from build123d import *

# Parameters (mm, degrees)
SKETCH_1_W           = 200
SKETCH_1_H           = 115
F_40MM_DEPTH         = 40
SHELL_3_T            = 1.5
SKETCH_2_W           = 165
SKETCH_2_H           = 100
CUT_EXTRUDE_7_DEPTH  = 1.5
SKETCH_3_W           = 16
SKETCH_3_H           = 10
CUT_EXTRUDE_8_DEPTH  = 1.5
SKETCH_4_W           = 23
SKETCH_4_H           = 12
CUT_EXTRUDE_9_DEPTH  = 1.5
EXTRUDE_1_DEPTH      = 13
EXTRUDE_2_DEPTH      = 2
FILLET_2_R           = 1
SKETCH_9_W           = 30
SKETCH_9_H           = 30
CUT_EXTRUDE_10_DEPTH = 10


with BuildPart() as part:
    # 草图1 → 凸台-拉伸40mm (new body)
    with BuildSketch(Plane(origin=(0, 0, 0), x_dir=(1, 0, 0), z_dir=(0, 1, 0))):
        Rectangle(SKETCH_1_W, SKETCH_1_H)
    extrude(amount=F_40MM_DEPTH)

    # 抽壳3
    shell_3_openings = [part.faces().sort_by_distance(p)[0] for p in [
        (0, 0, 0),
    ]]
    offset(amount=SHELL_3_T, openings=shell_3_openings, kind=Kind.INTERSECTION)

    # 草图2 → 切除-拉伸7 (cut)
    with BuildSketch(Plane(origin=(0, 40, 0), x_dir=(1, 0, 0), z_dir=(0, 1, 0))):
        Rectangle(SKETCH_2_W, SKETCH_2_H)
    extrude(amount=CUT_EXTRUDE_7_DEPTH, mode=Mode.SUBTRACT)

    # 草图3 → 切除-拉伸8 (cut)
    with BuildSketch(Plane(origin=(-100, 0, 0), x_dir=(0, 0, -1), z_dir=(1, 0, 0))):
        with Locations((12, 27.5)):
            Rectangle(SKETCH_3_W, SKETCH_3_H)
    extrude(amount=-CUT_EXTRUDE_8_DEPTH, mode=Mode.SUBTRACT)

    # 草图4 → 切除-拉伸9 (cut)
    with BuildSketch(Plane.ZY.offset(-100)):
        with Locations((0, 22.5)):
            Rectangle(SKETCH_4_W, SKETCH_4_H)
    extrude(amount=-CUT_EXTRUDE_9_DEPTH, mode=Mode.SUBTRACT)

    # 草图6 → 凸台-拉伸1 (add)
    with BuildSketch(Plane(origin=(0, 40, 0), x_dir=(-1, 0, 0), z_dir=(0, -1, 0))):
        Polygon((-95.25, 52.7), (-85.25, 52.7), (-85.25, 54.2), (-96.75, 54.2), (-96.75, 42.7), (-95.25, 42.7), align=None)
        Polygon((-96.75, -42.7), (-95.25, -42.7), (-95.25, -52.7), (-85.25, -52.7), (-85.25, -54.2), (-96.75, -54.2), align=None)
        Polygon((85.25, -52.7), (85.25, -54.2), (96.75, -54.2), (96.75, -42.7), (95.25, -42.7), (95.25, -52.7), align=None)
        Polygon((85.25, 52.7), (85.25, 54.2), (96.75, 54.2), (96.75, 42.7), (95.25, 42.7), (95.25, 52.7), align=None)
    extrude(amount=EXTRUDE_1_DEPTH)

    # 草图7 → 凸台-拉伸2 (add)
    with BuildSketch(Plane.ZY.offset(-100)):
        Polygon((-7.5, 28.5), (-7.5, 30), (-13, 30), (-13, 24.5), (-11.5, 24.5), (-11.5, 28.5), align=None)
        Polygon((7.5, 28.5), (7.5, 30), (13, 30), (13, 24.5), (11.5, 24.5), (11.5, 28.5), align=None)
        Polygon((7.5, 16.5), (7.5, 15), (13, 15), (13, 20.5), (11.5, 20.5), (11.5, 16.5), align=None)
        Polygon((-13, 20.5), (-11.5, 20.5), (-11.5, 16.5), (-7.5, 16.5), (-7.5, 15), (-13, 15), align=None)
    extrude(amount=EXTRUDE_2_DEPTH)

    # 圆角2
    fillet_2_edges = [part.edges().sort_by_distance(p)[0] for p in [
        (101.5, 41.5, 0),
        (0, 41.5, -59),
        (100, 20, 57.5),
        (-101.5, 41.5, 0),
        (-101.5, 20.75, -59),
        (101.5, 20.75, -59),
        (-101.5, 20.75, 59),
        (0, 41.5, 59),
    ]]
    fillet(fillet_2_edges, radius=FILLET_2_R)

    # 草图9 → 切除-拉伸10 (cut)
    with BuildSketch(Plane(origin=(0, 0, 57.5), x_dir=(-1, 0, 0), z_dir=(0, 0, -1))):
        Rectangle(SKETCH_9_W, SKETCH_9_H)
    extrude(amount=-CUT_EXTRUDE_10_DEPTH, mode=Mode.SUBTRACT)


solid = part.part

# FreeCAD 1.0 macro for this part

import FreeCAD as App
import Part
import Sketcher
from FreeCAD import Vector
Q = App.Units.Quantity


def edges_at(feature, points):
    """Names of the edges that pass closest to the given points."""
    edges = feature.Shape.Edges
    near = lambda p: min(range(len(edges)), key=lambda i: edges[i].distToShape(Part.Vertex(*p))[0])
    return sorted({f"Edge{near(p) + 1}" for p in points})


def faces_at(feature, points):
    """Names of the faces that lie closest to the given points."""
    faces = feature.Shape.Faces
    near = lambda p: min(range(len(faces)), key=lambda i: faces[i].distToShape(Part.Vertex(*p))[0])
    return sorted({f"Face{near(p) + 1}" for p in points})

doc = App.newDocument("Part")
body = doc.addObject("PartDesign::Body", "Body")

sketch1 = body.newObject("Sketcher::SketchObject", "Sketch")
sketch1.AttachmentSupport = (doc.getObject("XZ_Plane"), [""])
sketch1.MapMode = "FlatFace"
sketch1.addGeometry([
    Part.LineSegment(Vector(-100, -58, 0), Vector(-100, 58, 0)),
    Part.LineSegment(Vector(-100, 58, 0), Vector(100, 58, 0)),
    Part.LineSegment(Vector(100, 58, 0), Vector(100, -58, 0)),
    Part.LineSegment(Vector(100, -58, 0), Vector(-100, -58, 0)),
], False)
sketch1.addConstraint([
    Sketcher.Constraint("Coincident", 0, 2, 1, 1),
    Sketcher.Constraint("Coincident", 1, 2, 2, 1),
    Sketcher.Constraint("Coincident", 2, 2, 3, 1),
    Sketcher.Constraint("Coincident", 3, 2, 0, 1),
    Sketcher.Constraint("Vertical", 0),
    Sketcher.Constraint("Horizontal", 1),
    Sketcher.Constraint("Vertical", 2),
    Sketcher.Constraint("Horizontal", 3),
    Sketcher.Constraint("Symmetric", 0, 2, 2, 2, -1, 1),
    Sketcher.Constraint("DistanceX", 1, 1, 1, 2, Q("200 mm")),
    Sketcher.Constraint("DistanceY", 0, 1, 0, 2, Q("115 mm")),
])
pad1 = body.newObject("PartDesign::Pad", "Pad")
pad1.Profile = sketch1
pad1.Length = 40
pad1.Reversed = True
doc.recompute()

thickness = body.newObject("PartDesign::Thickness", "Thickness")
thickness.Base = (pad1, faces_at(pad1, [(0, 0, 0)]))
thickness.Value = 1.5
thickness.Reversed = False
thickness.Join = "Intersection"

sketch2 = body.newObject("Sketcher::SketchObject", "Sketch001")
sketch2.AttachmentSupport = (doc.getObject("XZ_Plane"), [""])
sketch2.MapMode = "FlatFace"
sketch2.AttachmentOffset = App.Placement(Vector(0, 0, -40), App.Rotation())
sketch2.addGeometry([
    Part.LineSegment(Vector(-82, -50, 0), Vector(-82, 50, 0)),
    Part.LineSegment(Vector(-82, 50, 0), Vector(82, 50, 0)),
    Part.LineSegment(Vector(82, 50, 0), Vector(82, -50, 0)),
    Part.LineSegment(Vector(82, -50, 0), Vector(-82, -50, 0)),
], False)
sketch2.addConstraint([
    Sketcher.Constraint("Coincident", 0, 2, 1, 1),
    Sketcher.Constraint("Coincident", 1, 2, 2, 1),
    Sketcher.Constraint("Coincident", 2, 2, 3, 1),
    Sketcher.Constraint("Coincident", 3, 2, 0, 1),
    Sketcher.Constraint("Vertical", 0),
    Sketcher.Constraint("Horizontal", 1),
    Sketcher.Constraint("Vertical", 2),
    Sketcher.Constraint("Horizontal", 3),
    Sketcher.Constraint("Symmetric", 0, 2, 2, 2, -1, 1),
    Sketcher.Constraint("DistanceX", 1, 1, 1, 2, Q("165 mm")),
    Sketcher.Constraint("DistanceY", 0, 1, 0, 2, Q("100 mm")),
])
pocket1 = body.newObject("PartDesign::Pocket", "Pocket")
pocket1.Profile = sketch2
pocket1.Length = 1.5

sketch3 = body.newObject("Sketcher::SketchObject", "Sketch002")
sketch3.AttachmentSupport = (doc.getObject("YZ_Plane"), [""])
sketch3.MapMode = "FlatFace"
sketch3.AttachmentOffset = App.Placement(Vector(0, 0, -100), App.Rotation())
sketch3.addGeometry([
    Part.LineSegment(Vector(32, -4, 0), Vector(22, -4, 0)),
    Part.LineSegment(Vector(22, -4, 0), Vector(22, -20, 0)),
    Part.LineSegment(Vector(22, -20, 0), Vector(32, -20, 0)),
    Part.LineSegment(Vector(32, -20, 0), Vector(32, -4, 0)),
], False)
sketch3.addConstraint([
    Sketcher.Constraint("Coincident", 0, 2, 1, 1),
    Sketcher.Constraint("Coincident", 1, 2, 2, 1),
    Sketcher.Constraint("Coincident", 2, 2, 3, 1),
    Sketcher.Constraint("Coincident", 3, 2, 0, 1),
    Sketcher.Constraint("Horizontal", 0),
    Sketcher.Constraint("Vertical", 1),
    Sketcher.Constraint("Horizontal", 2),
    Sketcher.Constraint("Vertical", 3),
    Sketcher.Constraint("DistanceX", 0, 2, 0, 1, Q("10 mm")),
    Sketcher.Constraint("DistanceY", 1, 2, 1, 1, Q("16 mm")),
    Sketcher.Constraint("DistanceY", 0, 2, -1, 1, Q("4 mm")),
    Sketcher.Constraint("DistanceX", -1, 1, 0, 2, Q("22.5 mm")),
])
pocket2 = body.newObject("PartDesign::Pocket", "Pocket001")
pocket2.Profile = sketch3
pocket2.Length = 1.5

sketch4 = body.newObject("Sketcher::SketchObject", "Sketch003")
sketch4.AttachmentSupport = (doc.getObject("YZ_Plane"), [""])
sketch4.MapMode = "FlatFace"
sketch4.AttachmentOffset = App.Placement(Vector(0, 0, 100), App.Rotation())
sketch4.addGeometry([
    Part.LineSegment(Vector(28, -12, 0), Vector(16, -12, 0)),
    Part.LineSegment(Vector(16, -12, 0), Vector(16, 12, 0)),
    Part.LineSegment(Vector(16, 12, 0), Vector(28, 12, 0)),
    Part.LineSegment(Vector(28, 12, 0), Vector(28, -12, 0)),
], False)
sketch4.addConstraint([
    Sketcher.Constraint("Coincident", 0, 2, 1, 1),
    Sketcher.Constraint("Coincident", 1, 2, 2, 1),
    Sketcher.Constraint("Coincident", 2, 2, 3, 1),
    Sketcher.Constraint("Coincident", 3, 2, 0, 1),
    Sketcher.Constraint("Horizontal", 0),
    Sketcher.Constraint("Vertical", 1),
    Sketcher.Constraint("Horizontal", 2),
    Sketcher.Constraint("Vertical", 3),
    Sketcher.Constraint("DistanceX", 0, 2, 0, 1, Q("12 mm")),
    Sketcher.Constraint("DistanceY", 1, 1, 1, 2, Q("23 mm")),
    Sketcher.Constraint("DistanceX", -1, 1, 0, 2, Q("16.5 mm")),
    Sketcher.Constraint("DistanceY", 0, 2, -1, 1, Q("11.5 mm")),
])
pocket3 = body.newObject("PartDesign::Pocket", "Pocket002")
pocket3.Profile = sketch4
pocket3.Length = 1.5
pocket3.Reversed = True

sketch5 = body.newObject("Sketcher::SketchObject", "Sketch004")
sketch5.AttachmentSupport = (doc.getObject("XZ_Plane"), [""])
sketch5.MapMode = "FlatFace"
sketch5.AttachmentOffset = App.Placement(Vector(0, 0, -40), App.Rotation())
sketch5.addGeometry([
    Part.LineSegment(Vector(95.2, -52.7, 0), Vector(85.2, -52.7, 0)),
    Part.LineSegment(Vector(85.2, -52.7, 0), Vector(85.2, -54.2, 0)),
    Part.LineSegment(Vector(85.2, -54.2, 0), Vector(96.8, -54.2, 0)),
    Part.LineSegment(Vector(96.8, -54.2, 0), Vector(96.8, -42.7, 0)),
    Part.LineSegment(Vector(96.8, -42.7, 0), Vector(95.2, -42.7, 0)),
    Part.LineSegment(Vector(95.2, -42.7, 0), Vector(95.2, -52.7, 0)),
    Part.LineSegment(Vector(95.2, 42.7, 0), Vector(96.8, 42.7, 0)),
    Part.LineSegment(Vector(96.8, 42.7, 0), Vector(96.8, 54.2, 0)),
    Part.LineSegment(Vector(96.8, 54.2, 0), Vector(85.2, 54.2, 0)),
    Part.LineSegment(Vector(85.2, 54.2, 0), Vector(85.2, 52.7, 0)),
    Part.LineSegment(Vector(85.2, 52.7, 0), Vector(95.2, 52.7, 0)),
    Part.LineSegment(Vector(95.2, 52.7, 0), Vector(95.2, 42.7, 0)),
    Part.LineSegment(Vector(-85.2, 52.7, 0), Vector(-85.2, 54.2, 0)),
    Part.LineSegment(Vector(-85.2, 54.2, 0), Vector(-96.8, 54.2, 0)),
    Part.LineSegment(Vector(-96.8, 54.2, 0), Vector(-96.8, 42.7, 0)),
    Part.LineSegment(Vector(-96.8, 42.7, 0), Vector(-95.2, 42.7, 0)),
    Part.LineSegment(Vector(-95.2, 42.7, 0), Vector(-95.2, 52.7, 0)),
    Part.LineSegment(Vector(-95.2, 52.7, 0), Vector(-85.2, 52.7, 0)),
    Part.LineSegment(Vector(-85.2, -54.2, 0), Vector(-85.2, -52.7, 0)),
    Part.LineSegment(Vector(-85.2, -52.7, 0), Vector(-95.2, -52.7, 0)),
    Part.LineSegment(Vector(-95.2, -52.7, 0), Vector(-95.2, -42.7, 0)),
    Part.LineSegment(Vector(-95.2, -42.7, 0), Vector(-96.8, -42.7, 0)),
    Part.LineSegment(Vector(-96.8, -42.7, 0), Vector(-96.8, -54.2, 0)),
    Part.LineSegment(Vector(-96.8, -54.2, 0), Vector(-85.2, -54.2, 0)),
], False)
sketch5.addConstraint([
    Sketcher.Constraint("Coincident", 0, 2, 1, 1),
    Sketcher.Constraint("Coincident", 1, 2, 2, 1),
    Sketcher.Constraint("Coincident", 2, 2, 3, 1),
    Sketcher.Constraint("Coincident", 3, 2, 4, 1),
    Sketcher.Constraint("Coincident", 4, 2, 5, 1),
    Sketcher.Constraint("Coincident", 5, 2, 0, 1),
    Sketcher.Constraint("Coincident", 6, 2, 7, 1),
    Sketcher.Constraint("Coincident", 7, 2, 8, 1),
    Sketcher.Constraint("Coincident", 8, 2, 9, 1),
    Sketcher.Constraint("Coincident", 9, 2, 10, 1),
    Sketcher.Constraint("Coincident", 10, 2, 11, 1),
    Sketcher.Constraint("Coincident", 11, 2, 6, 1),
    Sketcher.Constraint("Coincident", 12, 2, 13, 1),
    Sketcher.Constraint("Coincident", 13, 2, 14, 1),
    Sketcher.Constraint("Coincident", 14, 2, 15, 1),
    Sketcher.Constraint("Coincident", 15, 2, 16, 1),
    Sketcher.Constraint("Coincident", 16, 2, 17, 1),
    Sketcher.Constraint("Coincident", 17, 2, 12, 1),
    Sketcher.Constraint("Coincident", 18, 2, 19, 1),
    Sketcher.Constraint("Coincident", 19, 2, 20, 1),
    Sketcher.Constraint("Coincident", 20, 2, 21, 1),
    Sketcher.Constraint("Coincident", 21, 2, 22, 1),
    Sketcher.Constraint("Coincident", 22, 2, 23, 1),
    Sketcher.Constraint("Coincident", 23, 2, 18, 1),
    Sketcher.Constraint("Horizontal", 0),
    Sketcher.Constraint("Vertical", 1),
    Sketcher.Constraint("Horizontal", 2),
    Sketcher.Constraint("Vertical", 3),
    Sketcher.Constraint("Horizontal", 4),
    Sketcher.Constraint("Vertical", 5),
    Sketcher.Constraint("Horizontal", 6),
    Sketcher.Constraint("Vertical", 7),
    Sketcher.Constraint("Horizontal", 8),
    Sketcher.Constraint("Vertical", 9),
    Sketcher.Constraint("Horizontal", 10),
    Sketcher.Constraint("Vertical", 11),
    Sketcher.Constraint("Vertical", 12),
    Sketcher.Constraint("Horizontal", 13),
    Sketcher.Constraint("Vertical", 14),
    Sketcher.Constraint("Horizontal", 15),
    Sketcher.Constraint("Vertical", 16),
    Sketcher.Constraint("Horizontal", 17),
    Sketcher.Constraint("Vertical", 18),
    Sketcher.Constraint("Horizontal", 19),
    Sketcher.Constraint("Vertical", 20),
    Sketcher.Constraint("Horizontal", 21),
    Sketcher.Constraint("Vertical", 22),
    Sketcher.Constraint("Horizontal", 23),
    Sketcher.Constraint("Symmetric", 1, 2, 12, 2, -1, 1),
    Sketcher.Constraint("Symmetric", 3, 2, 14, 2, -1, 1),
    Sketcher.Constraint("Symmetric", 5, 2, 16, 2, -1, 1),
    Sketcher.Constraint("Symmetric", 9, 2, 18, 2, -1, 1),
    Sketcher.Constraint("Symmetric", 11, 2, 20, 2, -1, 1),
    Sketcher.Constraint("Symmetric", 7, 2, 22, 2, -1, 1),
    Sketcher.Constraint("Symmetric", 8, 2, 12, 2, -2),
    Sketcher.Constraint("Symmetric", 6, 2, 14, 2, -2),
    Sketcher.Constraint("Symmetric", 10, 2, 16, 2, -2),
    Sketcher.Constraint("Equal", 21, 1),
    Sketcher.Constraint("Equal", 23, 3),
    Sketcher.Constraint("DistanceX", 0, 2, 0, 1, Q("10 mm")),
    Sketcher.Constraint("DistanceX", 2, 1, 2, 2, Q("11.5 mm")),
    Sketcher.Constraint("DistanceX", 12, 2, 7, 2, Q("182 mm")),
    Sketcher.Constraint("DistanceY", 0, 2, -1, 1, Q("52.7 mm")),
])
pad2 = body.newObject("PartDesign::Pad", "Pad001")
pad2.Profile = sketch5
pad2.Length = 13

sketch6 = body.newObject("Sketcher::SketchObject", "Sketch005")
sketch6.AttachmentSupport = (doc.getObject("YZ_Plane"), [""])
sketch6.MapMode = "FlatFace"
sketch6.AttachmentOffset = App.Placement(Vector(0, 0, 100), App.Rotation())
sketch6.addGeometry([
    Part.LineSegment(Vector(28.5, -7.5, 0), Vector(30, -7.5, 0)),
    Part.LineSegment(Vector(30, -7.5, 0), Vector(30, -13, 0)),
    Part.LineSegment(Vector(30, -13, 0), Vector(24.5, -13, 0)),
    Part.LineSegment(Vector(24.5, -13, 0), Vector(24.5, -11.5, 0)),
    Part.LineSegment(Vector(24.5, -11.5, 0), Vector(28.5, -11.5, 0)),
    Part.LineSegment(Vector(28.5, -11.5, 0), Vector(28.5, -7.5, 0)),
    Part.LineSegment(Vector(30, 7.5, 0), Vector(28.5, 7.5, 0)),
    Part.LineSegment(Vector(28.5, 7.5, 0), Vector(28.5, 11.5, 0)),
    Part.LineSegment(Vector(28.5, 11.5, 0), Vector(24.5, 11.5, 0)),
    Part.LineSegment(Vector(24.5, 11.5, 0), Vector(24.5, 13, 0)),
    Part.LineSegment(Vector(24.5, 13, 0), Vector(30, 13, 0)),
    Part.LineSegment(Vector(30, 13, 0), Vector(30, 7.5, 0)),
    Part.LineSegment(Vector(16.5, 7.5, 0), Vector(15, 7.5, 0)),
    Part.LineSegment(Vector(15, 7.5, 0), Vector(15, 13, 0)),
    Part.LineSegment(Vector(15, 13, 0), Vector(20.5, 13, 0)),
    Part.LineSegment(Vector(20.5, 13, 0), Vector(20.5, 11.5, 0)),
    Part.LineSegment(Vector(20.5, 11.5, 0), Vector(16.5, 11.5, 0)),
    Part.LineSegment(Vector(16.5, 11.5, 0), Vector(16.5, 7.5, 0)),
    Part.LineSegment(Vector(20.5, -11.5, 0), Vector(20.5, -13, 0)),
    Part.LineSegment(Vector(20.5, -13, 0), Vector(15, -13, 0)),
    Part.LineSegment(Vector(15, -13, 0), Vector(15, -7.5, 0)),
    Part.LineSegment(Vector(15, -7.5, 0), Vector(16.5, -7.5, 0)),
    Part.LineSegment(Vector(16.5, -7.5, 0), Vector(16.5, -11.5, 0)),
    Part.LineSegment(Vector(16.5, -11.5, 0), Vector(20.5, -11.5, 0)),
], False)
sketch6.addConstraint([
    Sketcher.Constraint("Coincident", 0, 2, 1, 1),
    Sketcher.Constraint("Coincident", 1, 2, 2, 1),
    Sketcher.Constraint("Coincident", 2, 2, 3, 1),
    Sketcher.Constraint("Coincident", 3, 2, 4, 1),
    Sketcher.Constraint("Coincident", 4, 2, 5, 1),
    Sketcher.Constraint("Coincident", 5, 2, 0, 1),
    Sketcher.Constraint("Coincident", 6, 2, 7, 1),
    Sketcher.Constraint("Coincident", 7, 2, 8, 1),
    Sketcher.Constraint("Coincident", 8, 2, 9, 1),
    Sketcher.Constraint("Coincident", 9, 2, 10, 1),
    Sketcher.Constraint("Coincident", 10, 2, 11, 1),
    Sketcher.Constraint("Coincident", 11, 2, 6, 1),
    Sketcher.Constraint("Coincident", 12, 2, 13, 1),
    Sketcher.Constraint("Coincident", 13, 2, 14, 1),
    Sketcher.Constraint("Coincident", 14, 2, 15, 1),
    Sketcher.Constraint("Coincident", 15, 2, 16, 1),
    Sketcher.Constraint("Coincident", 16, 2, 17, 1),
    Sketcher.Constraint("Coincident", 17, 2, 12, 1),
    Sketcher.Constraint("Coincident", 18, 2, 19, 1),
    Sketcher.Constraint("Coincident", 19, 2, 20, 1),
    Sketcher.Constraint("Coincident", 20, 2, 21, 1),
    Sketcher.Constraint("Coincident", 21, 2, 22, 1),
    Sketcher.Constraint("Coincident", 22, 2, 23, 1),
    Sketcher.Constraint("Coincident", 23, 2, 18, 1),
    Sketcher.Constraint("Horizontal", 0),
    Sketcher.Constraint("Vertical", 1),
    Sketcher.Constraint("Horizontal", 2),
    Sketcher.Constraint("Vertical", 3),
    Sketcher.Constraint("Horizontal", 4),
    Sketcher.Constraint("Vertical", 5),
    Sketcher.Constraint("Horizontal", 6),
    Sketcher.Constraint("Vertical", 7),
    Sketcher.Constraint("Horizontal", 8),
    Sketcher.Constraint("Vertical", 9),
    Sketcher.Constraint("Horizontal", 10),
    Sketcher.Constraint("Vertical", 11),
    Sketcher.Constraint("Horizontal", 12),
    Sketcher.Constraint("Vertical", 13),
    Sketcher.Constraint("Horizontal", 14),
    Sketcher.Constraint("Vertical", 15),
    Sketcher.Constraint("Horizontal", 16),
    Sketcher.Constraint("Vertical", 17),
    Sketcher.Constraint("Vertical", 18),
    Sketcher.Constraint("Horizontal", 19),
    Sketcher.Constraint("Vertical", 20),
    Sketcher.Constraint("Horizontal", 21),
    Sketcher.Constraint("Vertical", 22),
    Sketcher.Constraint("Horizontal", 23),
    Sketcher.Constraint("Symmetric", 5, 2, 6, 2, -1),
    Sketcher.Constraint("Symmetric", 3, 2, 8, 2, -1),
    Sketcher.Constraint("Symmetric", 1, 2, 10, 2, -1),
    Sketcher.Constraint("Symmetric", 14, 2, 18, 2, -1),
    Sketcher.Constraint("Symmetric", 12, 2, 20, 2, -1),
    Sketcher.Constraint("Symmetric", 16, 2, 22, 2, -1),
    Sketcher.Constraint("Horizontal", 11, 2, 12, 2),
    Sketcher.Constraint("Horizontal", 10, 2, 13, 2),
    Sketcher.Constraint("Horizontal", 8, 2, 15, 2),
    Sketcher.Constraint("Equal", 6, 12),
    Sketcher.Constraint("Equal", 10, 14),
    Sketcher.Constraint("Equal", 19, 1),
    Sketcher.Constraint("Equal", 21, 3),
    Sketcher.Constraint("DistanceX", 4, 1, 4, 2, Q("4 mm")),
    Sketcher.Constraint("DistanceX", 0, 1, 0, 2, Q("1.5 mm")),
    Sketcher.Constraint("DistanceX", -1, 1, 0, 2, Q("30 mm")),
    Sketcher.Constraint("DistanceY", 1, 2, -1, 1, Q("13 mm")),
    Sketcher.Constraint("DistanceX", -1, 1, 12, 2, Q("15 mm")),
])
pad3 = body.newObject("PartDesign::Pad", "Pad002")
pad3.Profile = sketch6
pad3.Length = 2
pad3.Reversed = True
doc.recompute()

fillet = body.newObject("PartDesign::Fillet", "Fillet")
fillet.Base = (pad3, edges_at(pad3, [
    (101.5, 41.5, 0),
    (0, 41.5, -59),
    (100, 20, 57.5),
    (-101.5, 41.5, 0),
    (-101.5, 20.75, -59),
    (101.5, 20.75, -59),
    (-101.5, 20.75, 59),
    (0, 41.5, 59),
]))
fillet.Radius = 1

sketch7 = body.newObject("Sketcher::SketchObject", "Sketch006")
sketch7.AttachmentSupport = (doc.getObject("XY_Plane"), [""])
sketch7.MapMode = "FlatFace"
sketch7.AttachmentOffset = App.Placement(Vector(0, 0, 57.5), App.Rotation())
sketch7.addGeometry([
    Part.LineSegment(Vector(15, 15, 0), Vector(15, -15, 0)),
    Part.LineSegment(Vector(15, -15, 0), Vector(-15, -15, 0)),
    Part.LineSegment(Vector(-15, -15, 0), Vector(-15, 15, 0)),
    Part.LineSegment(Vector(-15, 15, 0), Vector(15, 15, 0)),
], False)
sketch7.addConstraint([
    Sketcher.Constraint("Coincident", 0, 2, 1, 1),
    Sketcher.Constraint("Coincident", 1, 2, 2, 1),
    Sketcher.Constraint("Coincident", 2, 2, 3, 1),
    Sketcher.Constraint("Coincident", 3, 2, 0, 1),
    Sketcher.Constraint("Vertical", 0),
    Sketcher.Constraint("Horizontal", 1),
    Sketcher.Constraint("Vertical", 2),
    Sketcher.Constraint("Horizontal", 3),
    Sketcher.Constraint("Symmetric", 0, 2, 2, 2, -1, 1),
    Sketcher.Constraint("Equal", 3, 0),
    Sketcher.Constraint("DistanceX", 1, 2, 1, 1, Q("30 mm")),
])
pocket4 = body.newObject("PartDesign::Pocket", "Pocket003")
pocket4.Profile = sketch7
pocket4.Length = 10
pocket4.Reversed = True

doc.recompute()
